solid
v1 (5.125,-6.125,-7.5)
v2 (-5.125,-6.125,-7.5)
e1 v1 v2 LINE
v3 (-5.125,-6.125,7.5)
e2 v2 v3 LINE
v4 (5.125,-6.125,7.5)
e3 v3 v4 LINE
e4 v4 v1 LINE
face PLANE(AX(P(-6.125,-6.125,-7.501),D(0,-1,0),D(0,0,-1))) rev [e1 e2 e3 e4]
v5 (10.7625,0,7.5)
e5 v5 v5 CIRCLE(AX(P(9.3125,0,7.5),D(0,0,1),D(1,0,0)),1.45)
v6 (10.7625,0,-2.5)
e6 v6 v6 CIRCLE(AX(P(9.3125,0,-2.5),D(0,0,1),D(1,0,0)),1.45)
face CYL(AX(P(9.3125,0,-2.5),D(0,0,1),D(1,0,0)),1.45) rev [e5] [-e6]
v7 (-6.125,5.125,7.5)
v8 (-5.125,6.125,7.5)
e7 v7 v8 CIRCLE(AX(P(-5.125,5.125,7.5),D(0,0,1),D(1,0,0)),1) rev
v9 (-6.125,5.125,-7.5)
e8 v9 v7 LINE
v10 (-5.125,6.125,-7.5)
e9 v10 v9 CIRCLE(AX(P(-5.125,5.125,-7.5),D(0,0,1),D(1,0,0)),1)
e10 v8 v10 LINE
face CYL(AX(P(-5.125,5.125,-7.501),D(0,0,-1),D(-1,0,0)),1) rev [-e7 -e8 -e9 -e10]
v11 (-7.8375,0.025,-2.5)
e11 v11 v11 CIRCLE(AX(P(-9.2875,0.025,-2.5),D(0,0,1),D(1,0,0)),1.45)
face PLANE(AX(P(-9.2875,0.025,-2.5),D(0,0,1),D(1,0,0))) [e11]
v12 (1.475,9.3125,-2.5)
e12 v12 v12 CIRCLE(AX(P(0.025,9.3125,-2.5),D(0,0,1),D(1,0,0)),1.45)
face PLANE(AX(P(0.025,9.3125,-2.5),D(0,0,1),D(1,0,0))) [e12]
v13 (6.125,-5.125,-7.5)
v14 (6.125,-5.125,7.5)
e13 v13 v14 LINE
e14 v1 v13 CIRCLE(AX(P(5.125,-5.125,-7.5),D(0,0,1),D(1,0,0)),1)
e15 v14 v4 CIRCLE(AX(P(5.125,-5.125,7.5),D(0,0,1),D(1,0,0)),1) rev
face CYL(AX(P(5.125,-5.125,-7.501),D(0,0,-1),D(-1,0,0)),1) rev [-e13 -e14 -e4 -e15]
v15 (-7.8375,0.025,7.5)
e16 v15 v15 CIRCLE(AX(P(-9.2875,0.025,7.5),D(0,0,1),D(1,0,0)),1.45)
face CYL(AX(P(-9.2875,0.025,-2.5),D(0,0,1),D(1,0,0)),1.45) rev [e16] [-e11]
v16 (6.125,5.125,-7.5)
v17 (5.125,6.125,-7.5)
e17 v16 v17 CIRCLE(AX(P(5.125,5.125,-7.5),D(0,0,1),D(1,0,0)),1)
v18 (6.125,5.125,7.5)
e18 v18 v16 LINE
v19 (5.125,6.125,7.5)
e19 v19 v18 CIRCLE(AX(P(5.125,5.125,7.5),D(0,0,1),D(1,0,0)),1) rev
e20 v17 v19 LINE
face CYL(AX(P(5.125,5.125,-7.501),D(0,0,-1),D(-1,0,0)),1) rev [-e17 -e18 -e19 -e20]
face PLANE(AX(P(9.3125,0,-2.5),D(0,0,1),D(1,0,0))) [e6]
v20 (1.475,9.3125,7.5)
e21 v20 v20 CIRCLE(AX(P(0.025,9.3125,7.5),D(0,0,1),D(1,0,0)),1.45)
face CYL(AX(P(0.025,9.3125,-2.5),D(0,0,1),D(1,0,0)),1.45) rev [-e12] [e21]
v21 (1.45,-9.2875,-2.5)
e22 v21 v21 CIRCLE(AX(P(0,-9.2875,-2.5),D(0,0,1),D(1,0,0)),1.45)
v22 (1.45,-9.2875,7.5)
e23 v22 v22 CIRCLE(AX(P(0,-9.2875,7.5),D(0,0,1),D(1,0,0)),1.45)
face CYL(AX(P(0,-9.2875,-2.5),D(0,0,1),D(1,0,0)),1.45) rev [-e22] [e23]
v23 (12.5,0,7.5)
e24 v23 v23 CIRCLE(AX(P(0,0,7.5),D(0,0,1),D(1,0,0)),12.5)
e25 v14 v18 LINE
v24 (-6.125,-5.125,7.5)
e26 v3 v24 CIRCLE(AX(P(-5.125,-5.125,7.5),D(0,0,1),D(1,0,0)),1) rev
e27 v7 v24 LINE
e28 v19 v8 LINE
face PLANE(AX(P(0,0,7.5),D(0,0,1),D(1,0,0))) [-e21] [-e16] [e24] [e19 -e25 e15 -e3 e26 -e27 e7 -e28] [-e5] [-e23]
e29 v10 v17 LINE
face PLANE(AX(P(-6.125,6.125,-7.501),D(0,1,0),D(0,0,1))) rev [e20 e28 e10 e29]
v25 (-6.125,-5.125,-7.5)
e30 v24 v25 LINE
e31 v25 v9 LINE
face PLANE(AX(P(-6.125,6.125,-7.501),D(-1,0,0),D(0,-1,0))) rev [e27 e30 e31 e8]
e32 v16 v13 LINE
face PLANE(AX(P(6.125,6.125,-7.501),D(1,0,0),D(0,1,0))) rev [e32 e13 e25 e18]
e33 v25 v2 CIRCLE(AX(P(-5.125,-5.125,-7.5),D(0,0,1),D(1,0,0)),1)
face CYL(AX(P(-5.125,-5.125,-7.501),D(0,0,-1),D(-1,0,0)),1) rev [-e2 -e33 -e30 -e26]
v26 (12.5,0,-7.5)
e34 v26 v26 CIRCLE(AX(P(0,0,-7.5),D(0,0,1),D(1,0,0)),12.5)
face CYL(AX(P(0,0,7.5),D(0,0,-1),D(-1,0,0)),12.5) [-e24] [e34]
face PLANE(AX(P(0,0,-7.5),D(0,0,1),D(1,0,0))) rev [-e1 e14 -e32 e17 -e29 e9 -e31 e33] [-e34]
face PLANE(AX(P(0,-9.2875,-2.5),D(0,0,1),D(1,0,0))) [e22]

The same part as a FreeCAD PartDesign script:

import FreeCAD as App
import Part
import Sketcher
Q = App.Units.Quantity


def edges_at(feature, points):
    """Names of the edges that pass closest to the given points."""
    edges = feature.Shape.Edges
    near = lambda p: min(range(len(edges)), key=lambda i: edges[i].distToShape(Part.Vertex(*p))[0])
    return sorted({f"Edge{near(p) + 1}" for p in points})


def add_polygon(sketch, points):
    """Adds a closed chain of lines whose ends are joined by coincident constraints."""
    first, n = sketch.GeometryCount, len(points)
    for a, b in zip(points, points[1:] + points[:1]):
        sketch.addGeometry(Part.LineSegment(App.Vector(*a, 0), App.Vector(*b, 0)), False)
    for i in range(n):
        sketch.addConstraint(Sketcher.Constraint("Coincident", first + i, 2, first + (i + 1) % n, 1))

doc = App.newDocument("Part")
params = doc.addObject("Spreadsheet::Sheet", "Params")
for row, (alias, value) in enumerate([
    ("sketch1_diameter", "25 mm"),
    ("pad1_length", "15 mm"),
    ("sketch2_width", "12.25 mm"),
    ("sketch3_diameter", "2.9 mm"),
    ("pocket2_length", "10 mm"),
    ("fillet_radius", "1 mm"),
], start=1):
    params.set(f"A{row}", alias)
    params.set(f"B{row}", "=" + value)
    params.setAlias(f"B{row}", alias)

body = doc.addObject("PartDesign::Body", "Body")

# Sketch on XY plane
sketch1 = doc.addObject("Sketcher::SketchObject", "Sketch")
body.addObject(sketch1)
sketch1.AttachmentSupport = (doc.XY_Plane, [""])
sketch1.MapMode = "FlatFace"
sketch1.addGeometry(Part.Circle(App.Vector(0, 0, 0), App.Vector(0, 0, 1), 12), False)
sketch1.addConstraint([
    Sketcher.Constraint("Coincident", 0, 3, -1, 1),
    Sketcher.Constraint("Diameter", 0, Q("25 mm")),
])
sketch1.setExpression("Constraints[1]", "Params.sketch1_diameter")
pad1 = doc.addObject("PartDesign::Pad", "Pad")
body.addObject(pad1)
pad1.Profile = sketch1
pad1.setExpression("Length", "Params.pad1_length")
pad1.Midplane = True

# Sketch on XY plane
sketch2 = doc.addObject("Sketcher::SketchObject", "Sketch001")
body.addObject(sketch2)
sketch2.AttachmentSupport = (doc.XY_Plane, [""])
sketch2.MapMode = "FlatFace"
sketch2.AttachmentOffset = App.Placement(App.Vector(0, 0, 7.5), App.Rotation())
add_polygon(sketch2, [(-6, 6), (-6, -6), (6, -6), (6, 6)])  # lines 0-3
sketch2.addConstraint([
    Sketcher.Constraint("Vertical", 0),
    Sketcher.Constraint("Horizontal", 1),
    Sketcher.Constraint("Vertical", 2),
    Sketcher.Constraint("Horizontal", 3),
    Sketcher.Constraint("Symmetric", 0, 2, 2, 2, -1, 1),
    Sketcher.Constraint("Equal", 3, 0),
    Sketcher.Constraint("DistanceX", 1, 1, 1, 2, Q("12.25 mm")),
])
sketch2.setExpression("Constraints[10]", "Params.sketch2_width")
pocket1 = doc.addObject("PartDesign::Pocket", "Pocket")
body.addObject(pocket1)
pocket1.Profile = sketch2
pocket1.Type = "UpToFirst"

# Sketch on XY plane
sketch3 = doc.addObject("Sketcher::SketchObject", "Sketch002")
body.addObject(sketch3)
sketch3.AttachmentSupport = (doc.XY_Plane, [""])
sketch3.MapMode = "FlatFace"
sketch3.AttachmentOffset = App.Placement(App.Vector(0, 0, 7.5), App.Rotation())
sketch3.addGeometry([
    Part.Circle(App.Vector(9.3, 0, 0), App.Vector(0, 0, 1), 1.4),
    Part.Circle(App.Vector(0, -9.3, 0), App.Vector(0, 0, 1), 1.4),
    Part.Circle(App.Vector(-9.3, 0, 0), App.Vector(0, 0, 1), 1.4),
    Part.Circle(App.Vector(0, 9.3, 0), App.Vector(0, 0, 1), 1.4),
], False)
sketch3.addConstraint([
    Sketcher.Constraint("Equal", 0, 1),
    Sketcher.Constraint("Equal", 1, 2),
    Sketcher.Constraint("Equal", 2, 3),
    Sketcher.Constraint("PointOnObject", 0, 3, -1),
    Sketcher.Constraint("PointOnObject", 1, 3, -2),
    Sketcher.Constraint("Diameter", 0, Q("2.9 mm")),
    Sketcher.Constraint("DistanceX", 2, 3, 0, 3, Q("18.6 mm")),
    Sketcher.Constraint("DistanceY", 1, 3, 3, 3, Q("18.6 mm")),
    Sketcher.Constraint("DistanceY", -1, 1, 2, 3, Q("0.025 mm")),
    Sketcher.Constraint("DistanceX", -1, 1, 3, 3, Q("0.025 mm")),
    Sketcher.Constraint("DistanceX", -1, 1, 0, 3, Q("9.3125 mm")),
    Sketcher.Constraint("DistanceY", 1, 3, -1, 1, Q("9.2875 mm")),
])
sketch3.setExpression("Constraints[5]", "Params.sketch3_diameter")
pocket2 = doc.addObject("PartDesign::Pocket", "Pocket001")
body.addObject(pocket2)
pocket2.Profile = sketch3
pocket2.setExpression("Length", "Params.pocket2_length")
doc.recompute()

fillet = doc.addObject("PartDesign::Fillet", "Fillet")
body.addObject(fillet)
fillet.Base = (pocket2, edges_at(pocket2, [
    (6.125, 6.125, 0),
    (6.125, -6.125, 0),
    (-6.125, -6.125, 0),
    (-6.125, 6.125, 0),
]))
fillet.setExpression("Radius", "Params.fillet_radius")

doc.recompute()
